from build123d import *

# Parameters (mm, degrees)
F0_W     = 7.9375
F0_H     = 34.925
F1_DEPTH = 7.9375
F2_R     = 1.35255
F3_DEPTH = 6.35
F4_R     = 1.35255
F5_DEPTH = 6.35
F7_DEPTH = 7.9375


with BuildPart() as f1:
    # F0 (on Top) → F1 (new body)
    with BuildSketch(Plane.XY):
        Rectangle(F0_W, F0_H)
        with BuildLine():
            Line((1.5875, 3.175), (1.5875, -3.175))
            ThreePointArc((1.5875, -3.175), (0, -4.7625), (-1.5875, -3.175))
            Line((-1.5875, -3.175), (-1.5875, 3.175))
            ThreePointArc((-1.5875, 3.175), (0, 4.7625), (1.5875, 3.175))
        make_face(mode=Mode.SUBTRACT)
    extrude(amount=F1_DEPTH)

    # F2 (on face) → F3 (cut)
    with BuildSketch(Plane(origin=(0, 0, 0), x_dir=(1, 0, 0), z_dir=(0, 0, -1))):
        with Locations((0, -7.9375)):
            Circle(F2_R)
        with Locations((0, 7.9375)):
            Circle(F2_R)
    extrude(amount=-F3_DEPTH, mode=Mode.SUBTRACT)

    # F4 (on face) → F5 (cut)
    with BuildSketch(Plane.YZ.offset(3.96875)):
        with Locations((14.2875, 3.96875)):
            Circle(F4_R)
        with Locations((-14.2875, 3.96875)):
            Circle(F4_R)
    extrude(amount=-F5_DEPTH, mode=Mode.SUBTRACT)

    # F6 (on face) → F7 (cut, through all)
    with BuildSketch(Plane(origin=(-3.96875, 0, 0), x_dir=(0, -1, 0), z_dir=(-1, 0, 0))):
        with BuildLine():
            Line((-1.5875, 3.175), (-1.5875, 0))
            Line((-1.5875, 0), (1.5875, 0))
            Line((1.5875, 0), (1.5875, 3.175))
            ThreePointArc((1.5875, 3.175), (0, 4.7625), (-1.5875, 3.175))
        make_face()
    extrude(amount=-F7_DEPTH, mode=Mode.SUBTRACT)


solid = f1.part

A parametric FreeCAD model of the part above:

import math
import FreeCAD as App
import Part
import Sketcher
from FreeCAD import Vector
Q = App.Units.Quantity

doc = App.newDocument("Part")
body = doc.addObject("PartDesign::Body", "Body")

sketch1 = body.newObject("Sketcher::SketchObject", "Sketch")
sketch1.AttachmentSupport = (doc.getObject("XY_Plane"), [""])
sketch1.MapMode = "FlatFace"
sketch1.addGeometry([
    Part.LineSegment(Vector(-3.96875, 17.4625, 0), Vector(-3.96875, -17.4625, 0)),
    Part.LineSegment(Vector(-3.96875, -17.4625, 0), Vector(3.96875, -17.4625, 0)),
    Part.LineSegment(Vector(3.96875, -17.4625, 0), Vector(3.96875, 17.4625, 0)),
    Part.LineSegment(Vector(3.96875, 17.4625, 0), Vector(-3.96875, 17.4625, 0)),
    Part.ArcOfCircle(Part.Circle(Vector(0, 3.175, 0), Vector(0, 0, 1), 1.5875), math.radians(0), math.radians(180)),
    Part.LineSegment(Vector(1.5875, 3.175, 0), Vector(1.5875, -3.175, 0)),
    Part.ArcOfCircle(Part.Circle(Vector(0, -3.175, 0), Vector(0, 0, 1), 1.5875), math.radians(180), math.radians(360)),
    Part.LineSegment(Vector(-1.5875, -3.175, 0), Vector(-1.5875, 3.175, 0)),
], False)
sketch1.addConstraint([
    Sketcher.Constraint("Coincident", 0, 2, 1, 1),
    Sketcher.Constraint("Coincident", 1, 2, 2, 1),
    Sketcher.Constraint("Coincident", 2, 2, 3, 1),
    Sketcher.Constraint("Coincident", 3, 2, 0, 1),
    Sketcher.Constraint("Tangent", 4, 1, 5, 1),
    Sketcher.Constraint("Tangent", 5, 2, 6, 2),
    Sketcher.Constraint("Tangent", 6, 1, 7, 1),
    Sketcher.Constraint("Tangent", 7, 2, 4, 2),
    Sketcher.Constraint("Vertical", 0),
    Sketcher.Constraint("Horizontal", 1),
    Sketcher.Constraint("Vertical", 2),
    Sketcher.Constraint("Horizontal", 3),
    Sketcher.Constraint("Vertical", 5),
    Sketcher.Constraint("Vertical", 7),
    Sketcher.Constraint("Symmetric", 4, 3, 6, 3, -1, 1),
    Sketcher.Constraint("Symmetric", 0, 2, 2, 2, -1, 1),
    Sketcher.Constraint("Radius", 4, Q("0.0625 in")),
    Sketcher.Constraint("DistanceY", 5, 2, 5, 1, Q("0.25 in")),
    Sketcher.Constraint("DistanceX", 1, 1, 1, 2, Q("0.3125 in")),
    Sketcher.Constraint("DistanceY", 0, 2, 0, 1, Q("1.375 in")),
])
pad1 = body.newObject("PartDesign::Pad", "Pad")
pad1.Profile = sketch1
pad1.Length = Q("0.3125 in")

sketch2 = body.newObject("Sketcher::SketchObject", "Sketch001")
sketch2.AttachmentSupport = (doc.getObject("XY_Plane"), [""])
sketch2.MapMode = "FlatFace"
sketch2.addGeometry([
    Part.Circle(Vector(0, 7.9375, 0), Vector(0, 0, 1), 1.35255),
    Part.Circle(Vector(0, -7.9375, 0), Vector(0, 0, 1), 1.35255),
], False)
sketch2.addConstraint([
    Sketcher.Constraint("Equal", 0, 1),
    Sketcher.Constraint("Symmetric", 0, 3, 1, 3, -1, 1),
    Sketcher.Constraint("PointOnObject", 0, 3, -2),
    Sketcher.Constraint("Diameter", 0, Q("0.1065 in")),
    Sketcher.Constraint("DistanceY", -1, 1, 0, 3, Q("0.3125 in")),
])
pocket1 = body.newObject("PartDesign::Pocket", "Pocket")
pocket1.Profile = sketch2
pocket1.Length = Q("0.25 in")
pocket1.Reversed = True

sketch3 = body.newObject("Sketcher::SketchObject", "Sketch002")
sketch3.AttachmentSupport = (doc.getObject("YZ_Plane"), [""])
sketch3.MapMode = "FlatFace"
sketch3.AttachmentOffset = App.Placement(Vector(0, 0, 0.15625 * 25.4), App.Rotation())
sketch3.addGeometry([
    Part.Circle(Vector(14.2875, 3.96875, 0), Vector(0, 0, 1), 1.35255),
    Part.Circle(Vector(-14.2875, 3.96875, 0), Vector(0, 0, 1), 1.35255),
], False)
sketch3.addConstraint([
    Sketcher.Constraint("Equal", 0, 1),
    Sketcher.Constraint("Symmetric", 0, 3, 1, 3, -2),
    Sketcher.Constraint("Diameter", 0, Q("0.1065 in")),
    Sketcher.Constraint("DistanceX", -1, 1, 0, 3, Q("0.5625 in")),
    Sketcher.Constraint("DistanceY", -1, 1, 0, 3, Q("0.15625 in")),
])
pocket2 = body.newObject("PartDesign::Pocket", "Pocket001")
pocket2.Profile = sketch3
pocket2.Length = Q("0.25 in")

sketch4 = body.newObject("Sketcher::SketchObject", "Sketch003")
sketch4.AttachmentSupport = (doc.getObject("YZ_Plane"), [""])
sketch4.MapMode = "FlatFace"
sketch4.AttachmentOffset = App.Placement(Vector(0, 0, -0.15625 * 25.4), App.Rotation())
sketch4.addGeometry([
    Part.LineSegment(Vector(1.5875, 3.175, 0), Vector(1.5875, 0, 0)),
    Part.LineSegment(Vector(1.5875, 0, 0), Vector(-1.5875, 0, 0)),
    Part.LineSegment(Vector(-1.5875, 0, 0), Vector(-1.5875, 3.175, 0)),
    Part.ArcOfCircle(Part.Circle(Vector(0, 3.175, 0), Vector(0, 0, 1), 1.5875), math.radians(0), math.radians(180)),
], False)
sketch4.addConstraint([
    Sketcher.Constraint("Coincident", 0, 2, 1, 1),
    Sketcher.Constraint("Coincident", 1, 2, 2, 1),
    Sketcher.Constraint("Tangent", 2, 2, 3, 2),
    Sketcher.Constraint("Tangent", 3, 1, 0, 1),
    Sketcher.Constraint("Vertical", 0),
    Sketcher.Constraint("Horizontal", 1),
    Sketcher.Constraint("Vertical", 2),
    Sketcher.Constraint("Symmetric", 0, 2, 1, 2, -1, 1),
    Sketcher.Constraint("Equal", 1, 0),
    Sketcher.Constraint("Radius", 3, Q("0.0625 in")),
])
pocket3 = body.newObject("PartDesign::Pocket", "Pocket002")
pocket3.Profile = sketch4
pocket3.Type = "ThroughAll"
pocket3.Reversed = True

doc.recompute()
